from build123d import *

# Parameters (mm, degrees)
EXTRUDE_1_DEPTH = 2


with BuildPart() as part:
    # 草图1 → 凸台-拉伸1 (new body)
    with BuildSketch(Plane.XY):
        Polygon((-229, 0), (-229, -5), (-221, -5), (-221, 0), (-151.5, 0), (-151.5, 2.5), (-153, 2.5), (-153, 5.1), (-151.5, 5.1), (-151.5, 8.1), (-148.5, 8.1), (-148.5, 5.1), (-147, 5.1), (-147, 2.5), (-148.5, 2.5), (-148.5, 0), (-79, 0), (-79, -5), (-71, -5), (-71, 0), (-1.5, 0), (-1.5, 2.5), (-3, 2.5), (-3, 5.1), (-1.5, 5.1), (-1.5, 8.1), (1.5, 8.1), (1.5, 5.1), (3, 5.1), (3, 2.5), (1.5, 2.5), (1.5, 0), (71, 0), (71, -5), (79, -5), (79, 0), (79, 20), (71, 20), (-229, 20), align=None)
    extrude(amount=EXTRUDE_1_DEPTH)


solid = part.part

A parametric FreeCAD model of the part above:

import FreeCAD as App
import Part
import Sketcher

V = App.Vector


def add_polygon(sketch, points):
    """Adds a closed chain of lines whose ends are joined by coincident constraints."""
    first, n = sketch.GeometryCount, len(points)
    for a, b in zip(points, points[1:] + points[:1]):
        sketch.addGeometry(Part.LineSegment(App.Vector(*a, 0), App.Vector(*b, 0)), False)
    for i in range(n):
        sketch.addConstraint(Sketcher.Constraint("Coincident", first + i, 2, first + (i + 1) % n, 1))

doc = App.newDocument("Part")
params = doc.addObject("Spreadsheet::Sheet", "Params")
for row, (alias, value) in enumerate([
    ("sketch1_width", "8 mm"),
    ("sketch1_width2", "3 mm"),
    ("sketch1_width3", "308 mm"),
    ("sketch1_height", "5 mm"),
    ("sketch1_height2", "25 mm"),
    ("pad1_length", "2 mm"),
], start=1):
    params.set(f"A{row}", alias)
    params.set(f"B{row}", "=" + value)
    params.setAlias(f"B{row}", alias)

body = doc.addObject("PartDesign::Body", "Body")

# Sketch on XY plane
sketch1 = body.newObject("Sketcher::SketchObject", "Sketch")
sketch1.AttachmentSupport = (doc.getObject("XY_Plane"), [""])
sketch1.MapMode = "FlatFace"
add_polygon(sketch1, [(-229, -5), (-221, -5), (-221, 0), (-151.5, 0), (-151.5, 2.5), (-153, 2.5), (-153, 5.1), (-151.5, 5.1), (-151.5, 8.1), (-148.5, 8.1), (-148.5, 5.1), (-147, 5.1), (-147, 2.5), (-148.5, 2.5), (-148.5, 0), (-79, 0), (-79, -5), (-71, -5), (-71, 0), (-1.5, 0), (-1.5, 2.5), (-3, 2.5), (-3, 5.1), (-1.5, 5.1), (-1.5, 8.1), (1.5, 8.1), (1.5, 5.1), (3, 5.1), (3, 2.5), (1.5, 2.5), (1.5, 0), (71, 0), (71, -5), (79, -5), (79, 20), (-229, 20)])  # lines 0-35
sketch1.addConstraint([
    Sketcher.Constraint("Horizontal", 0),
    Sketcher.Constraint("Vertical", 1),
    Sketcher.Constraint("Horizontal", 2),
    Sketcher.Constraint("Vertical", 3),
    Sketcher.Constraint("Horizontal", 4),
    Sketcher.Constraint("Vertical", 5),
    Sketcher.Constraint("Horizontal", 6),
    Sketcher.Constraint("Vertical", 7),
    Sketcher.Constraint("Horizontal", 8),
    Sketcher.Constraint("Vertical", 9),
    Sketcher.Constraint("Horizontal", 10),
    Sketcher.Constraint("Vertical", 11),
    Sketcher.Constraint("Horizontal", 12),
    Sketcher.Constraint("Vertical", 13),
    Sketcher.Constraint("Horizontal", 14),
    Sketcher.Constraint("Vertical", 15),
    Sketcher.Constraint("Horizontal", 16),
    Sketcher.Constraint("Vertical", 17),
    Sketcher.Constraint("Horizontal", 18),
    Sketcher.Constraint("Vertical", 19),
    Sketcher.Constraint("Horizontal", 20),
    Sketcher.Constraint("Vertical", 21),
    Sketcher.Constraint("Horizontal", 22),
    Sketcher.Constraint("Vertical", 23),
    Sketcher.Constraint("Horizontal", 24),
    Sketcher.Constraint("Vertical", 25),
    Sketcher.Constraint("Horizontal", 26),
    Sketcher.Constraint("Vertical", 27),
    Sketcher.Constraint("Horizontal", 28),
    Sketcher.Constraint("Vertical", 29),
    Sketcher.Constraint("Horizontal", 30),
    Sketcher.Constraint("Vertical", 31),
    Sketcher.Constraint("Horizontal", 32),
    Sketcher.Constraint("Vertical", 33),
    Sketcher.Constraint("Horizontal", 34),
    Sketcher.Constraint("Vertical", 35),
    Sketcher.Constraint("Symmetric", 18, 2, 29, 2, -1, 1),
    Sketcher.Constraint("Symmetric", 22, 2, 25, 2, -2),
    Sketcher.Constraint("Symmetric", 20, 2, 27, 2, -2),
    Sketcher.Constraint("Symmetric", 17, 2, 30, 2, -2),
    Sketcher.Constraint("Symmetric", 15, 2, 32, 2, -2),
    Sketcher.Constraint("PointOnObject", 1, 2, -1),
    Sketcher.Constraint("PointOnObject", 13, 2, -1),
    Sketcher.Constraint("Horizontal", 6, 2, 9, 2),
    Sketcher.Constraint("Horizontal", 4, 2, 11, 2),
    Sketcher.Constraint("Horizontal", 0, 2, 15, 2),
    Sketcher.Constraint("Horizontal", 12, 2, 19, 2),
    Sketcher.Constraint("Horizontal", 10, 2, 21, 2),
    Sketcher.Constraint("Horizontal", 8, 2, 23, 2),
    Sketcher.Constraint("Vertical", 3, 2, 6, 2),
    Sketcher.Constraint("Vertical", 9, 2, 12, 2),
    Sketcher.Constraint("Vertical", 19, 2, 22, 2),
    Sketcher.Constraint("Equal", 6, 10),
    Sketcher.Constraint("Equal", 2, 14),
    Sketcher.Constraint("Equal", 0, 16),
    Sketcher.Constraint("Equal", 14, 18),
    Sketcher.Constraint("Equal", 12, 20),
    Sketcher.Constraint("Equal", 8, 24),
    Sketcher.Constraint("Equal", 24, 7),
    Sketcher.Constraint("DistanceX", 0, 1, 0, 2, 8.0),
    Sketcher.Constraint("DistanceX", 8, 1, 8, 2, 3.0),
    Sketcher.Constraint("DistanceX", 34, 2, 34, 1, 308.0),
    Sketcher.Constraint("DistanceY", 1, 1, 1, 2, 5.0),
    Sketcher.Constraint("DistanceY", 33, 1, 33, 2, 25.0),
    Sketcher.Constraint("DistanceX", 4, 2, 4, 1, 1.5),
    Sketcher.Constraint("DistanceY", 3, 1, 3, 2, 2.5),
    Sketcher.Constraint("DistanceY", 5, 1, 5, 2, 2.6),
])
sketch1.setExpression("Constraints[95]", "Params.sketch1_width")
sketch1.setExpression("Constraints[96]", "Params.sketch1_width2")
sketch1.setExpression("Constraints[97]", "Params.sketch1_width3")
sketch1.setExpression("Constraints[98]", "Params.sketch1_height")
sketch1.setExpression("Constraints[99]", "Params.sketch1_height2")
pad1 = body.newObject("PartDesign::Pad", "Pad")
pad1.Profile = sketch1
pad1.setExpression("Length", "Params.pad1_length")

doc.recompute()
